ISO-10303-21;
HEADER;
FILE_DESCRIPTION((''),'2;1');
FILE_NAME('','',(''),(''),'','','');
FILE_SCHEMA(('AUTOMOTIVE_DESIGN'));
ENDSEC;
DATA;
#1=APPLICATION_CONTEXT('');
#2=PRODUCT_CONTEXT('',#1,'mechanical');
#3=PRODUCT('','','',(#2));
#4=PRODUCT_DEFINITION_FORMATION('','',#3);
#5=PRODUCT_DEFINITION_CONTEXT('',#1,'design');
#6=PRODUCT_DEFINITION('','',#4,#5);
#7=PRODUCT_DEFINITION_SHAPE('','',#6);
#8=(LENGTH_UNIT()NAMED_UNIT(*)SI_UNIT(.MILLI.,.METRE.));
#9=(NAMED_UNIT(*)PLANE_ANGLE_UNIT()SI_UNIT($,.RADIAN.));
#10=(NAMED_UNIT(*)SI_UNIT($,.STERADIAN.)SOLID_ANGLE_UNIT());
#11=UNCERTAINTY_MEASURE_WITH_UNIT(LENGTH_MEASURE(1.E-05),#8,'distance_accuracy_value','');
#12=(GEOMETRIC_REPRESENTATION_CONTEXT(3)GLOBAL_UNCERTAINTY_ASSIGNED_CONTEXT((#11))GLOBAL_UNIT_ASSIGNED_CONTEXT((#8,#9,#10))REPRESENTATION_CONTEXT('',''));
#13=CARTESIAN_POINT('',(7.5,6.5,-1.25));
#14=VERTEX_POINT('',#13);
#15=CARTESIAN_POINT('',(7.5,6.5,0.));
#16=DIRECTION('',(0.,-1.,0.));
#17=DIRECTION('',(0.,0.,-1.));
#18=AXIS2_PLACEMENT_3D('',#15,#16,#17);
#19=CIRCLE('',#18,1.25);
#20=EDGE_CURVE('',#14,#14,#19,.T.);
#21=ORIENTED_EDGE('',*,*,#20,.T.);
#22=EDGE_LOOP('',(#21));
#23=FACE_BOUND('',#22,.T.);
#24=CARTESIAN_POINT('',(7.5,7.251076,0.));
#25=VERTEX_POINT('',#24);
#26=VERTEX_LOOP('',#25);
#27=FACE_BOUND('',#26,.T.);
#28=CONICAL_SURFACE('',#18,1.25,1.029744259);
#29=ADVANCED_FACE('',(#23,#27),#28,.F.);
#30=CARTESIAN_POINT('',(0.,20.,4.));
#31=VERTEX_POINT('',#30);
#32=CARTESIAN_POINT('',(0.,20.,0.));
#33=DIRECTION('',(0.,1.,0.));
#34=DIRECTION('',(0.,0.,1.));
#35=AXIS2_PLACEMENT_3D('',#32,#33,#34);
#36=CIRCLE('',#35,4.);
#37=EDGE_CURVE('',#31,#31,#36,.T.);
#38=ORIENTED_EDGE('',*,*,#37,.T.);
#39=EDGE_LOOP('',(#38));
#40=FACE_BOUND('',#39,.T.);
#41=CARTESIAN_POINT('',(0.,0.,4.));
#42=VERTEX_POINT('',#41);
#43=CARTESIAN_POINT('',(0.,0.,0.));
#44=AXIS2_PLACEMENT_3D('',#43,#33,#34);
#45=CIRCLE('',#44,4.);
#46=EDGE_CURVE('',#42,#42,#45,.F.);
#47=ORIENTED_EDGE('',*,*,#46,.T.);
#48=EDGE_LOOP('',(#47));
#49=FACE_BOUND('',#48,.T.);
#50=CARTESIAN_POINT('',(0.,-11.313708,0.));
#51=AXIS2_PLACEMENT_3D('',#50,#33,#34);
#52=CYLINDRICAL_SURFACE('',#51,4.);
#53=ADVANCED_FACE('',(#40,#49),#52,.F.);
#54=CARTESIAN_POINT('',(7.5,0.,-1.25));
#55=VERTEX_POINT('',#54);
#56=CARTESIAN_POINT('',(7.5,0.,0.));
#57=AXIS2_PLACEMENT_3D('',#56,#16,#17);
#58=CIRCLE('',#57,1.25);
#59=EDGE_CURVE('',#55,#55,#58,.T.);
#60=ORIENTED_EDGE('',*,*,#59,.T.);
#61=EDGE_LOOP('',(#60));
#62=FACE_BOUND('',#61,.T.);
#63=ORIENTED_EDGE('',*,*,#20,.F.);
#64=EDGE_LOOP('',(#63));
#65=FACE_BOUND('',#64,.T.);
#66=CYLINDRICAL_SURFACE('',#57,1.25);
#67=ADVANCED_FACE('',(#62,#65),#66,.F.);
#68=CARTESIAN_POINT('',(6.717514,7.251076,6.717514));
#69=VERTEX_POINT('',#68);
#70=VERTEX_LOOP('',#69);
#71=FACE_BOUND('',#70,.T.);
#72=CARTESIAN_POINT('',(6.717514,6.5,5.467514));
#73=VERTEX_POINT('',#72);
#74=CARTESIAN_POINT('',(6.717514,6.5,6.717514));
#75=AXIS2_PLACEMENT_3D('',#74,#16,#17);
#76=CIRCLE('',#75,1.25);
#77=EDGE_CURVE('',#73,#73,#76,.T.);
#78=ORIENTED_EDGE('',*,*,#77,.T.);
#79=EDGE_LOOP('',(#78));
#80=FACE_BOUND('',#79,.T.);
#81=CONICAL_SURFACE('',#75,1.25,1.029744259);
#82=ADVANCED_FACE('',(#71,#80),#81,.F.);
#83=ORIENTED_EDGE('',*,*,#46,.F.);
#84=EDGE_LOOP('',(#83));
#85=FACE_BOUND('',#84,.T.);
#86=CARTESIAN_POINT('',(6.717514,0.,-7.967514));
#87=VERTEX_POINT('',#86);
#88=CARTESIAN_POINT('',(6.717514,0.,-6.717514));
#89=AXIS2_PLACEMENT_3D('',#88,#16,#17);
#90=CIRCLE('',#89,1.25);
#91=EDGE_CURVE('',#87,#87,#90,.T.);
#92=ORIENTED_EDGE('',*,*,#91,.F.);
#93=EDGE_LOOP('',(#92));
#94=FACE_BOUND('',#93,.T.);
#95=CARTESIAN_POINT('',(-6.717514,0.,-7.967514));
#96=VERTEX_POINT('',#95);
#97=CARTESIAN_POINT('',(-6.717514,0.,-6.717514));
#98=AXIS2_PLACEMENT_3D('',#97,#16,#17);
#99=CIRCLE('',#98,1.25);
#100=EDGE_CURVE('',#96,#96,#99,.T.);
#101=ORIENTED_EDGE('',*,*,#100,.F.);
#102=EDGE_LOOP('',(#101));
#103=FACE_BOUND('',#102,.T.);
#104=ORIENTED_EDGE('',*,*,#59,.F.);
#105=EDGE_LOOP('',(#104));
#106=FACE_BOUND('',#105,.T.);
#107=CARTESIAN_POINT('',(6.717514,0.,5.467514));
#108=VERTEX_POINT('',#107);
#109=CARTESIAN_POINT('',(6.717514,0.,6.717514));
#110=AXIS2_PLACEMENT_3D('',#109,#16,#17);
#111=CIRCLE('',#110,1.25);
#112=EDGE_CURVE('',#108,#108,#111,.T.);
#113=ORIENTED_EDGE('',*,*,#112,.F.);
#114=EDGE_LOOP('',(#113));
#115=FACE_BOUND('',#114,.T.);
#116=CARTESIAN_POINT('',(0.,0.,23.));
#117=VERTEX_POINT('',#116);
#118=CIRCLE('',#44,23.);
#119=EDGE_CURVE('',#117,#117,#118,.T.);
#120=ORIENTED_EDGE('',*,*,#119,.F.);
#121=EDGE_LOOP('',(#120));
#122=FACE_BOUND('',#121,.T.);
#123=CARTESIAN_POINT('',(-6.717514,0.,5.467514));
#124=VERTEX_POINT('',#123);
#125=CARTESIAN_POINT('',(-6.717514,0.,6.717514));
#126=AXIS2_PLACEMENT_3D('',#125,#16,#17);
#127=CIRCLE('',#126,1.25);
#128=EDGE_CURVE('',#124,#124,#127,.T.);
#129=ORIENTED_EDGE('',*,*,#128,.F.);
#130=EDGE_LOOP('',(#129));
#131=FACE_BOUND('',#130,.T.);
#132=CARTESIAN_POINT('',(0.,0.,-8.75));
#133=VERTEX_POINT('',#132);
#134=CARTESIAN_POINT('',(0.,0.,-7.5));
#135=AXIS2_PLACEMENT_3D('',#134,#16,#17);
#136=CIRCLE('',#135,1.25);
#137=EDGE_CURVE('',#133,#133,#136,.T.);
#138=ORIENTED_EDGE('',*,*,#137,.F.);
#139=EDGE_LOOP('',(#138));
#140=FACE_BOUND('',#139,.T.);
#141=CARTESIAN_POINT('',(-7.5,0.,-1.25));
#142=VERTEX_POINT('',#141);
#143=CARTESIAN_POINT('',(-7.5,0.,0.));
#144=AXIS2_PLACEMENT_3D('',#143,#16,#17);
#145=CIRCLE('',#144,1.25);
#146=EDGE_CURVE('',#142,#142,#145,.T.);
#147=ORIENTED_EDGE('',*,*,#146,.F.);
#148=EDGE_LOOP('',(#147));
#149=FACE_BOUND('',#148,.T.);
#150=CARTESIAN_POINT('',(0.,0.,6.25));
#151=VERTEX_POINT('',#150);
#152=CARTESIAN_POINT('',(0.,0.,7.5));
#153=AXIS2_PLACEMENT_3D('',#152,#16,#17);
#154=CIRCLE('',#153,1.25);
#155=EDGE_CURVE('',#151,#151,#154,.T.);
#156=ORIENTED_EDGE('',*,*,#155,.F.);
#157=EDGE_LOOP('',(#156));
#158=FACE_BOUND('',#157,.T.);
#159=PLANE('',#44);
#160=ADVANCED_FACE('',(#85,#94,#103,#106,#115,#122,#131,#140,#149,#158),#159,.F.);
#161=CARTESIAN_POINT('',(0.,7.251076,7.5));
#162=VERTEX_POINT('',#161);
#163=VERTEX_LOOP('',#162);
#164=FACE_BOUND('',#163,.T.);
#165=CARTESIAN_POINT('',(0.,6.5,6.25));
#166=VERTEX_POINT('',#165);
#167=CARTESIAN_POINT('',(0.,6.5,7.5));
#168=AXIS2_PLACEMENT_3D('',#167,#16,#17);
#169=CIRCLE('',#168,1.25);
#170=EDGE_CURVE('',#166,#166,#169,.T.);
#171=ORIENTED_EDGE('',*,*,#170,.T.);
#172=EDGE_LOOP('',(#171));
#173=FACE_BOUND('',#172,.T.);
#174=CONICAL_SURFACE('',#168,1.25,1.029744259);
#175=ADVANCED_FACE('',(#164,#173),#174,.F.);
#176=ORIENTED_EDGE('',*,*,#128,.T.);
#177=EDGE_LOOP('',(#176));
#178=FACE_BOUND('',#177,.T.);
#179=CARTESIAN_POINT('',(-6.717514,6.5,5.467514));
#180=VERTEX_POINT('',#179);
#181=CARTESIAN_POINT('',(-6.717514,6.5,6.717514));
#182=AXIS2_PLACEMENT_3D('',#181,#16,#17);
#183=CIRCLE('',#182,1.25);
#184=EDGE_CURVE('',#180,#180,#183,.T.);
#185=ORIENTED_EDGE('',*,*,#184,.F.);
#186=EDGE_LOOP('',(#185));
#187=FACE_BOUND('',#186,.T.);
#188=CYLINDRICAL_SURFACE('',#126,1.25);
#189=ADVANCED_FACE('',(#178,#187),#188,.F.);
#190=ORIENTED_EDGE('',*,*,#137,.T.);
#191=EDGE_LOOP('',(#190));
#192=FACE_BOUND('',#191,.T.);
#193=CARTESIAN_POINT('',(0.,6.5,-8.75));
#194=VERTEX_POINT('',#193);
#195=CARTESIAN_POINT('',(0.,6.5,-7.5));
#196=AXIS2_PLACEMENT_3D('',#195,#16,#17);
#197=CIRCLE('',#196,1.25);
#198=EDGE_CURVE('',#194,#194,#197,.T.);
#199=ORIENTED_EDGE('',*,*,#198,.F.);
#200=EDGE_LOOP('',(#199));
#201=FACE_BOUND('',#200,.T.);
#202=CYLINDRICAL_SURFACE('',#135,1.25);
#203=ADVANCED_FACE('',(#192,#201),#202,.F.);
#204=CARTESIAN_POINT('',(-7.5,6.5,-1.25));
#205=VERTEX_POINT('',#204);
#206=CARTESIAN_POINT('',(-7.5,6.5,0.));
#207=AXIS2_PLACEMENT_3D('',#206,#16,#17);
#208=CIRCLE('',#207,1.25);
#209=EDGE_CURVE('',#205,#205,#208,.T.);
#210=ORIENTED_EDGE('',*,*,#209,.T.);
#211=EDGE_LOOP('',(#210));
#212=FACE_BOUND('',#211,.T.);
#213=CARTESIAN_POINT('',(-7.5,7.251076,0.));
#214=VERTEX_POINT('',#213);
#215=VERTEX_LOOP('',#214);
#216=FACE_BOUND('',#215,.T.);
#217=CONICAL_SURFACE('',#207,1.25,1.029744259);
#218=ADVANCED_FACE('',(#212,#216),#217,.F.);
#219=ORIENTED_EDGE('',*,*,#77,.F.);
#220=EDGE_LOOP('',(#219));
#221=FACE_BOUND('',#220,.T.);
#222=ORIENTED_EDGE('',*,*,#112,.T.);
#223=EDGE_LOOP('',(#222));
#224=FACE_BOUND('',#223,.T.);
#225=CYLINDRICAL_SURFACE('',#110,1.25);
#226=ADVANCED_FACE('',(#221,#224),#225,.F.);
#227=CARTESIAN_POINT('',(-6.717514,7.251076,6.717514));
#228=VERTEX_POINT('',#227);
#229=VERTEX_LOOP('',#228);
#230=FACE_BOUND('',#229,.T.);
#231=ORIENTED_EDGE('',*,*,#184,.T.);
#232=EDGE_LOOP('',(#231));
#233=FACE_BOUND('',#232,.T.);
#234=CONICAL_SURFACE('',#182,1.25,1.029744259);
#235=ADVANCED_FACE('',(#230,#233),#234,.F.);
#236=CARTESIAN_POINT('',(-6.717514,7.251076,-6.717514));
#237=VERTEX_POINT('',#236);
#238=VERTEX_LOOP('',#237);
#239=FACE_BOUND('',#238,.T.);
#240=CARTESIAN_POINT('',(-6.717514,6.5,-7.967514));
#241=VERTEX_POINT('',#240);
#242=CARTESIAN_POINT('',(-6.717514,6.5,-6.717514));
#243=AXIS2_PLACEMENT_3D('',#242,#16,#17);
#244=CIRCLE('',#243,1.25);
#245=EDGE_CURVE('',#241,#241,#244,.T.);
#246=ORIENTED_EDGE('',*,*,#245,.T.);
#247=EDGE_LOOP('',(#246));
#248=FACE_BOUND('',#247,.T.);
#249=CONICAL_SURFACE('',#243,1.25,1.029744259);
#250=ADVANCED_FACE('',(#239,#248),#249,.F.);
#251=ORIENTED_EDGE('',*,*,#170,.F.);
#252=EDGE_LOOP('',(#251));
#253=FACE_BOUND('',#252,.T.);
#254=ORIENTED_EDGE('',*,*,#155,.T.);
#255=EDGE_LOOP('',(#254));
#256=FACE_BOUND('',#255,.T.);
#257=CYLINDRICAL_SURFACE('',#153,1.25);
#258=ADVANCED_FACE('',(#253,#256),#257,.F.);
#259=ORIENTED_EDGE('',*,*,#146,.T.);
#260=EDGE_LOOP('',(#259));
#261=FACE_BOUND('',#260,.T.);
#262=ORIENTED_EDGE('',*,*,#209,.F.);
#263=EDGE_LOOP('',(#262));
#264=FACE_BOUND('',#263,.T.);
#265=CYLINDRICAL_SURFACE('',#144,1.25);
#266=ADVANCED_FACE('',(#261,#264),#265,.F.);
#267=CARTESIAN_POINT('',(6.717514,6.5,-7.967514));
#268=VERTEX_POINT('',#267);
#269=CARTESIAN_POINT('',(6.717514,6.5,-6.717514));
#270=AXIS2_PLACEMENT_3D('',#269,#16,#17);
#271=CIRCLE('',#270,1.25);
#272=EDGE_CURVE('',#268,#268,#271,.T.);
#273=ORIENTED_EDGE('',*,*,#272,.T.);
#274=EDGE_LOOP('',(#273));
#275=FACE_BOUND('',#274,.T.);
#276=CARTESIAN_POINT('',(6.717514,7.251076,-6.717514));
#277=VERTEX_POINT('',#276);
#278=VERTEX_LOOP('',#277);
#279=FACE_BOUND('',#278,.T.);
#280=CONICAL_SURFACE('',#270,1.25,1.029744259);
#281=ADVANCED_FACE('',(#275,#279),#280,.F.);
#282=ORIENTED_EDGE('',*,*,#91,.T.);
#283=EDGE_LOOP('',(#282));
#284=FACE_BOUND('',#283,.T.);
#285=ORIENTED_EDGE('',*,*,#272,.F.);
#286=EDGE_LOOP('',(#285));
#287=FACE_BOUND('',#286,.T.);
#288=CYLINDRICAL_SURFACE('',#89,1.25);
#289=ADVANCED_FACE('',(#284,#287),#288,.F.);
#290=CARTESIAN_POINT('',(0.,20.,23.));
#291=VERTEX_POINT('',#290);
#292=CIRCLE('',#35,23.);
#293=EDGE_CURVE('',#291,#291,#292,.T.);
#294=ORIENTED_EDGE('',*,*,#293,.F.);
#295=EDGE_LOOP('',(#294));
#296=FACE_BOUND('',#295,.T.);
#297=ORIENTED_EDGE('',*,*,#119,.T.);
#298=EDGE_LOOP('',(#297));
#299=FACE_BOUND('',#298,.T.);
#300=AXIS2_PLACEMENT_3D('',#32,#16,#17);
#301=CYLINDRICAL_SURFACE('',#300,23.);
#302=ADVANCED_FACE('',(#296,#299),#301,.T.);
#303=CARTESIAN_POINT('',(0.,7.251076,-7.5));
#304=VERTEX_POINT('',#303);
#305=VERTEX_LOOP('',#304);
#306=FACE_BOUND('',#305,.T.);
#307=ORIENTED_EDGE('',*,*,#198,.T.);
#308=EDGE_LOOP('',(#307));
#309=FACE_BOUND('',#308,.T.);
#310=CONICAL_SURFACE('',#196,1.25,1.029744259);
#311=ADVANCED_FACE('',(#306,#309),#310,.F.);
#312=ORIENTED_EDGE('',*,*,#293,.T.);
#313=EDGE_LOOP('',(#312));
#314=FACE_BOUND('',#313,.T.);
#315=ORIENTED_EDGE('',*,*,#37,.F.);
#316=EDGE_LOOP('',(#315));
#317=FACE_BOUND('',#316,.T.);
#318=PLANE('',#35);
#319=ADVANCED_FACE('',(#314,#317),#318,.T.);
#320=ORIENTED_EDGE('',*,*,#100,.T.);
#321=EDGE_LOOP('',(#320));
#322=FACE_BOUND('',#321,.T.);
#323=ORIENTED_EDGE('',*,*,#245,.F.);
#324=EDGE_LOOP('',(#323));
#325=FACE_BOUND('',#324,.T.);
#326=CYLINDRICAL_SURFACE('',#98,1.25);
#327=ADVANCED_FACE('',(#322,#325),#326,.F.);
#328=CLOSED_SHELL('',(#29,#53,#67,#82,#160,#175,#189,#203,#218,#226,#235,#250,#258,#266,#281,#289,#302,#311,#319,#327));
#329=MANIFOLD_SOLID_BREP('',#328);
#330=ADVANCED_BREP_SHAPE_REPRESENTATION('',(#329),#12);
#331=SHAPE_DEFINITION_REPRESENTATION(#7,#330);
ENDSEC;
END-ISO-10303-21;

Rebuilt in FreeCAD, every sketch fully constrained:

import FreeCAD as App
import Part
import Sketcher

doc = App.newDocument("Part")
params = doc.addObject("Spreadsheet::Sheet", "Params")
for row, (alias, value) in enumerate([
    ("sketch1_diameter", "46 mm"),
    ("pad1_length", "20 mm"),
    ("sketch2_diameter", "8 mm"),
    ("pocket1_length", "20 mm"),
    ("sketch3_diameter", "2.5 mm"),
    ("hole_diameter", "2.5 mm"),
    ("hole_depth", "6.5 mm"),
], start=1):
    params.set(f"A{row}", alias)
    params.set(f"B{row}", "=" + value)
    params.setAlias(f"B{row}", alias)

body = doc.addObject("PartDesign::Body", "Body")

# Sketch on XZ plane
sketch1 = body.newObject("Sketcher::SketchObject", "Sketch")
sketch1.AttachmentSupport = (doc.getObject("XZ_Plane"), [""])
sketch1.MapMode = "FlatFace"
sketch1.addGeometry(Part.Circle(App.Vector(0, 0, 0), App.Vector(0, 0, 1), 23), False)
sketch1.addConstraint([
    Sketcher.Constraint("Coincident", 0, 3, -1, 1),
    Sketcher.Constraint("Diameter", 0, 46.0),
])
sketch1.setExpression("Constraints[1]", "Params.sketch1_diameter")
pad1 = body.newObject("PartDesign::Pad", "Pad")
pad1.Profile = sketch1
pad1.setExpression("Length", "Params.pad1_length")
pad1.Reversed = True

# Sketch on XZ plane
sketch2 = body.newObject("Sketcher::SketchObject", "Sketch001")
sketch2.AttachmentSupport = (doc.getObject("XZ_Plane"), [""])
sketch2.MapMode = "FlatFace"
sketch2.AttachmentOffset = App.Placement(App.Vector(0, 0, -20), App.Rotation())
sketch2.addGeometry(Part.Circle(App.Vector(0, 0, 0), App.Vector(0, 0, 1), 4), False)
sketch2.addConstraint([
    Sketcher.Constraint("Coincident", 0, 3, -1, 1),
    Sketcher.Constraint("Diameter", 0, 8.0),
])
sketch2.setExpression("Constraints[1]", "Params.sketch2_diameter")
pocket1 = body.newObject("PartDesign::Pocket", "Pocket")
pocket1.Profile = sketch2
pocket1.setExpression("Length", "Params.pocket1_length")
pocket1.Reversed = True

# Sketch on XZ plane
sketch3 = body.newObject("Sketcher::SketchObject", "Sketch002")
sketch3.AttachmentSupport = (doc.getObject("XZ_Plane"), [""])
sketch3.MapMode = "FlatFace"
sketch3.addGeometry([
    Part.Circle(App.Vector(-6.717514, -6.717514, 0), App.Vector(0, 0, 1), 1.25),  # 0
    Part.Circle(App.Vector(7.5, 0, 0), App.Vector(0, 0, 1), 1.25),  # 1
    Part.Circle(App.Vector(-7.5, 0, 0), App.Vector(0, 0, 1), 1.25),  # 2
    Part.Circle(App.Vector(0, -7.5, 0), App.Vector(0, 0, 1), 1.25),  # 3
    Part.Circle(App.Vector(0, 7.5, 0), App.Vector(0, 0, 1), 1.25),  # 4
    Part.Circle(App.Vector(6.717514, -6.717514, 0), App.Vector(0, 0, 1), 1.25),  # 5
    Part.Circle(App.Vector(6.717514, 6.717514, 0), App.Vector(0, 0, 1), 1.25),  # 6
    Part.Circle(App.Vector(-6.717514, 6.717514, 0), App.Vector(0, 0, 1), 1.25),  # 7
], False)
sketch3.addConstraint([
    Sketcher.Constraint("Equal", 0, 1),
    Sketcher.Constraint("Equal", 1, 2),
    Sketcher.Constraint("Equal", 2, 3),
    Sketcher.Constraint("Equal", 3, 4),
    Sketcher.Constraint("Equal", 4, 5),
    Sketcher.Constraint("Equal", 5, 6),
    Sketcher.Constraint("Equal", 6, 7),
    Sketcher.Constraint("Symmetric", 1, 3, 2, 3, -1, 1),
    Sketcher.Constraint("Symmetric", 3, 3, 4, 3, -1, 1),
    Sketcher.Constraint("Symmetric", 0, 3, 6, 3, -1, 1),
    Sketcher.Constraint("Symmetric", 5, 3, 7, 3, -1, 1),
    Sketcher.Constraint("Symmetric", 0, 3, 5, 3, -2),
    Sketcher.Constraint("PointOnObject", 1, 3, -1),
    Sketcher.Constraint("PointOnObject", 3, 3, -2),
    Sketcher.Constraint("Diameter", 0, 2.5),
    Sketcher.Constraint("DistanceX", 2, 3, 1, 3, 15.0),
    Sketcher.Constraint("DistanceY", 3, 3, 4, 3, 15.0),
    Sketcher.Constraint("DistanceX", 0, 3, 5, 3, 13.435029),
    Sketcher.Constraint("DistanceY", 5, 3, 6, 3, 13.435029),
])
sketch3.setExpression("Constraints[14]", "Params.sketch3_diameter")
doc.recompute()
hole = body.newObject("PartDesign::Hole", "Hole")
hole.Profile = sketch3
hole.ThreadType = "None"
hole.setExpression("Diameter", "Params.hole_diameter")
hole.DepthType = "Dimension"
hole.setExpression("Depth", "Params.hole_depth")
hole.DrillPoint = "Angled"
hole.DrillPointAngle = 118

doc.recompute()
